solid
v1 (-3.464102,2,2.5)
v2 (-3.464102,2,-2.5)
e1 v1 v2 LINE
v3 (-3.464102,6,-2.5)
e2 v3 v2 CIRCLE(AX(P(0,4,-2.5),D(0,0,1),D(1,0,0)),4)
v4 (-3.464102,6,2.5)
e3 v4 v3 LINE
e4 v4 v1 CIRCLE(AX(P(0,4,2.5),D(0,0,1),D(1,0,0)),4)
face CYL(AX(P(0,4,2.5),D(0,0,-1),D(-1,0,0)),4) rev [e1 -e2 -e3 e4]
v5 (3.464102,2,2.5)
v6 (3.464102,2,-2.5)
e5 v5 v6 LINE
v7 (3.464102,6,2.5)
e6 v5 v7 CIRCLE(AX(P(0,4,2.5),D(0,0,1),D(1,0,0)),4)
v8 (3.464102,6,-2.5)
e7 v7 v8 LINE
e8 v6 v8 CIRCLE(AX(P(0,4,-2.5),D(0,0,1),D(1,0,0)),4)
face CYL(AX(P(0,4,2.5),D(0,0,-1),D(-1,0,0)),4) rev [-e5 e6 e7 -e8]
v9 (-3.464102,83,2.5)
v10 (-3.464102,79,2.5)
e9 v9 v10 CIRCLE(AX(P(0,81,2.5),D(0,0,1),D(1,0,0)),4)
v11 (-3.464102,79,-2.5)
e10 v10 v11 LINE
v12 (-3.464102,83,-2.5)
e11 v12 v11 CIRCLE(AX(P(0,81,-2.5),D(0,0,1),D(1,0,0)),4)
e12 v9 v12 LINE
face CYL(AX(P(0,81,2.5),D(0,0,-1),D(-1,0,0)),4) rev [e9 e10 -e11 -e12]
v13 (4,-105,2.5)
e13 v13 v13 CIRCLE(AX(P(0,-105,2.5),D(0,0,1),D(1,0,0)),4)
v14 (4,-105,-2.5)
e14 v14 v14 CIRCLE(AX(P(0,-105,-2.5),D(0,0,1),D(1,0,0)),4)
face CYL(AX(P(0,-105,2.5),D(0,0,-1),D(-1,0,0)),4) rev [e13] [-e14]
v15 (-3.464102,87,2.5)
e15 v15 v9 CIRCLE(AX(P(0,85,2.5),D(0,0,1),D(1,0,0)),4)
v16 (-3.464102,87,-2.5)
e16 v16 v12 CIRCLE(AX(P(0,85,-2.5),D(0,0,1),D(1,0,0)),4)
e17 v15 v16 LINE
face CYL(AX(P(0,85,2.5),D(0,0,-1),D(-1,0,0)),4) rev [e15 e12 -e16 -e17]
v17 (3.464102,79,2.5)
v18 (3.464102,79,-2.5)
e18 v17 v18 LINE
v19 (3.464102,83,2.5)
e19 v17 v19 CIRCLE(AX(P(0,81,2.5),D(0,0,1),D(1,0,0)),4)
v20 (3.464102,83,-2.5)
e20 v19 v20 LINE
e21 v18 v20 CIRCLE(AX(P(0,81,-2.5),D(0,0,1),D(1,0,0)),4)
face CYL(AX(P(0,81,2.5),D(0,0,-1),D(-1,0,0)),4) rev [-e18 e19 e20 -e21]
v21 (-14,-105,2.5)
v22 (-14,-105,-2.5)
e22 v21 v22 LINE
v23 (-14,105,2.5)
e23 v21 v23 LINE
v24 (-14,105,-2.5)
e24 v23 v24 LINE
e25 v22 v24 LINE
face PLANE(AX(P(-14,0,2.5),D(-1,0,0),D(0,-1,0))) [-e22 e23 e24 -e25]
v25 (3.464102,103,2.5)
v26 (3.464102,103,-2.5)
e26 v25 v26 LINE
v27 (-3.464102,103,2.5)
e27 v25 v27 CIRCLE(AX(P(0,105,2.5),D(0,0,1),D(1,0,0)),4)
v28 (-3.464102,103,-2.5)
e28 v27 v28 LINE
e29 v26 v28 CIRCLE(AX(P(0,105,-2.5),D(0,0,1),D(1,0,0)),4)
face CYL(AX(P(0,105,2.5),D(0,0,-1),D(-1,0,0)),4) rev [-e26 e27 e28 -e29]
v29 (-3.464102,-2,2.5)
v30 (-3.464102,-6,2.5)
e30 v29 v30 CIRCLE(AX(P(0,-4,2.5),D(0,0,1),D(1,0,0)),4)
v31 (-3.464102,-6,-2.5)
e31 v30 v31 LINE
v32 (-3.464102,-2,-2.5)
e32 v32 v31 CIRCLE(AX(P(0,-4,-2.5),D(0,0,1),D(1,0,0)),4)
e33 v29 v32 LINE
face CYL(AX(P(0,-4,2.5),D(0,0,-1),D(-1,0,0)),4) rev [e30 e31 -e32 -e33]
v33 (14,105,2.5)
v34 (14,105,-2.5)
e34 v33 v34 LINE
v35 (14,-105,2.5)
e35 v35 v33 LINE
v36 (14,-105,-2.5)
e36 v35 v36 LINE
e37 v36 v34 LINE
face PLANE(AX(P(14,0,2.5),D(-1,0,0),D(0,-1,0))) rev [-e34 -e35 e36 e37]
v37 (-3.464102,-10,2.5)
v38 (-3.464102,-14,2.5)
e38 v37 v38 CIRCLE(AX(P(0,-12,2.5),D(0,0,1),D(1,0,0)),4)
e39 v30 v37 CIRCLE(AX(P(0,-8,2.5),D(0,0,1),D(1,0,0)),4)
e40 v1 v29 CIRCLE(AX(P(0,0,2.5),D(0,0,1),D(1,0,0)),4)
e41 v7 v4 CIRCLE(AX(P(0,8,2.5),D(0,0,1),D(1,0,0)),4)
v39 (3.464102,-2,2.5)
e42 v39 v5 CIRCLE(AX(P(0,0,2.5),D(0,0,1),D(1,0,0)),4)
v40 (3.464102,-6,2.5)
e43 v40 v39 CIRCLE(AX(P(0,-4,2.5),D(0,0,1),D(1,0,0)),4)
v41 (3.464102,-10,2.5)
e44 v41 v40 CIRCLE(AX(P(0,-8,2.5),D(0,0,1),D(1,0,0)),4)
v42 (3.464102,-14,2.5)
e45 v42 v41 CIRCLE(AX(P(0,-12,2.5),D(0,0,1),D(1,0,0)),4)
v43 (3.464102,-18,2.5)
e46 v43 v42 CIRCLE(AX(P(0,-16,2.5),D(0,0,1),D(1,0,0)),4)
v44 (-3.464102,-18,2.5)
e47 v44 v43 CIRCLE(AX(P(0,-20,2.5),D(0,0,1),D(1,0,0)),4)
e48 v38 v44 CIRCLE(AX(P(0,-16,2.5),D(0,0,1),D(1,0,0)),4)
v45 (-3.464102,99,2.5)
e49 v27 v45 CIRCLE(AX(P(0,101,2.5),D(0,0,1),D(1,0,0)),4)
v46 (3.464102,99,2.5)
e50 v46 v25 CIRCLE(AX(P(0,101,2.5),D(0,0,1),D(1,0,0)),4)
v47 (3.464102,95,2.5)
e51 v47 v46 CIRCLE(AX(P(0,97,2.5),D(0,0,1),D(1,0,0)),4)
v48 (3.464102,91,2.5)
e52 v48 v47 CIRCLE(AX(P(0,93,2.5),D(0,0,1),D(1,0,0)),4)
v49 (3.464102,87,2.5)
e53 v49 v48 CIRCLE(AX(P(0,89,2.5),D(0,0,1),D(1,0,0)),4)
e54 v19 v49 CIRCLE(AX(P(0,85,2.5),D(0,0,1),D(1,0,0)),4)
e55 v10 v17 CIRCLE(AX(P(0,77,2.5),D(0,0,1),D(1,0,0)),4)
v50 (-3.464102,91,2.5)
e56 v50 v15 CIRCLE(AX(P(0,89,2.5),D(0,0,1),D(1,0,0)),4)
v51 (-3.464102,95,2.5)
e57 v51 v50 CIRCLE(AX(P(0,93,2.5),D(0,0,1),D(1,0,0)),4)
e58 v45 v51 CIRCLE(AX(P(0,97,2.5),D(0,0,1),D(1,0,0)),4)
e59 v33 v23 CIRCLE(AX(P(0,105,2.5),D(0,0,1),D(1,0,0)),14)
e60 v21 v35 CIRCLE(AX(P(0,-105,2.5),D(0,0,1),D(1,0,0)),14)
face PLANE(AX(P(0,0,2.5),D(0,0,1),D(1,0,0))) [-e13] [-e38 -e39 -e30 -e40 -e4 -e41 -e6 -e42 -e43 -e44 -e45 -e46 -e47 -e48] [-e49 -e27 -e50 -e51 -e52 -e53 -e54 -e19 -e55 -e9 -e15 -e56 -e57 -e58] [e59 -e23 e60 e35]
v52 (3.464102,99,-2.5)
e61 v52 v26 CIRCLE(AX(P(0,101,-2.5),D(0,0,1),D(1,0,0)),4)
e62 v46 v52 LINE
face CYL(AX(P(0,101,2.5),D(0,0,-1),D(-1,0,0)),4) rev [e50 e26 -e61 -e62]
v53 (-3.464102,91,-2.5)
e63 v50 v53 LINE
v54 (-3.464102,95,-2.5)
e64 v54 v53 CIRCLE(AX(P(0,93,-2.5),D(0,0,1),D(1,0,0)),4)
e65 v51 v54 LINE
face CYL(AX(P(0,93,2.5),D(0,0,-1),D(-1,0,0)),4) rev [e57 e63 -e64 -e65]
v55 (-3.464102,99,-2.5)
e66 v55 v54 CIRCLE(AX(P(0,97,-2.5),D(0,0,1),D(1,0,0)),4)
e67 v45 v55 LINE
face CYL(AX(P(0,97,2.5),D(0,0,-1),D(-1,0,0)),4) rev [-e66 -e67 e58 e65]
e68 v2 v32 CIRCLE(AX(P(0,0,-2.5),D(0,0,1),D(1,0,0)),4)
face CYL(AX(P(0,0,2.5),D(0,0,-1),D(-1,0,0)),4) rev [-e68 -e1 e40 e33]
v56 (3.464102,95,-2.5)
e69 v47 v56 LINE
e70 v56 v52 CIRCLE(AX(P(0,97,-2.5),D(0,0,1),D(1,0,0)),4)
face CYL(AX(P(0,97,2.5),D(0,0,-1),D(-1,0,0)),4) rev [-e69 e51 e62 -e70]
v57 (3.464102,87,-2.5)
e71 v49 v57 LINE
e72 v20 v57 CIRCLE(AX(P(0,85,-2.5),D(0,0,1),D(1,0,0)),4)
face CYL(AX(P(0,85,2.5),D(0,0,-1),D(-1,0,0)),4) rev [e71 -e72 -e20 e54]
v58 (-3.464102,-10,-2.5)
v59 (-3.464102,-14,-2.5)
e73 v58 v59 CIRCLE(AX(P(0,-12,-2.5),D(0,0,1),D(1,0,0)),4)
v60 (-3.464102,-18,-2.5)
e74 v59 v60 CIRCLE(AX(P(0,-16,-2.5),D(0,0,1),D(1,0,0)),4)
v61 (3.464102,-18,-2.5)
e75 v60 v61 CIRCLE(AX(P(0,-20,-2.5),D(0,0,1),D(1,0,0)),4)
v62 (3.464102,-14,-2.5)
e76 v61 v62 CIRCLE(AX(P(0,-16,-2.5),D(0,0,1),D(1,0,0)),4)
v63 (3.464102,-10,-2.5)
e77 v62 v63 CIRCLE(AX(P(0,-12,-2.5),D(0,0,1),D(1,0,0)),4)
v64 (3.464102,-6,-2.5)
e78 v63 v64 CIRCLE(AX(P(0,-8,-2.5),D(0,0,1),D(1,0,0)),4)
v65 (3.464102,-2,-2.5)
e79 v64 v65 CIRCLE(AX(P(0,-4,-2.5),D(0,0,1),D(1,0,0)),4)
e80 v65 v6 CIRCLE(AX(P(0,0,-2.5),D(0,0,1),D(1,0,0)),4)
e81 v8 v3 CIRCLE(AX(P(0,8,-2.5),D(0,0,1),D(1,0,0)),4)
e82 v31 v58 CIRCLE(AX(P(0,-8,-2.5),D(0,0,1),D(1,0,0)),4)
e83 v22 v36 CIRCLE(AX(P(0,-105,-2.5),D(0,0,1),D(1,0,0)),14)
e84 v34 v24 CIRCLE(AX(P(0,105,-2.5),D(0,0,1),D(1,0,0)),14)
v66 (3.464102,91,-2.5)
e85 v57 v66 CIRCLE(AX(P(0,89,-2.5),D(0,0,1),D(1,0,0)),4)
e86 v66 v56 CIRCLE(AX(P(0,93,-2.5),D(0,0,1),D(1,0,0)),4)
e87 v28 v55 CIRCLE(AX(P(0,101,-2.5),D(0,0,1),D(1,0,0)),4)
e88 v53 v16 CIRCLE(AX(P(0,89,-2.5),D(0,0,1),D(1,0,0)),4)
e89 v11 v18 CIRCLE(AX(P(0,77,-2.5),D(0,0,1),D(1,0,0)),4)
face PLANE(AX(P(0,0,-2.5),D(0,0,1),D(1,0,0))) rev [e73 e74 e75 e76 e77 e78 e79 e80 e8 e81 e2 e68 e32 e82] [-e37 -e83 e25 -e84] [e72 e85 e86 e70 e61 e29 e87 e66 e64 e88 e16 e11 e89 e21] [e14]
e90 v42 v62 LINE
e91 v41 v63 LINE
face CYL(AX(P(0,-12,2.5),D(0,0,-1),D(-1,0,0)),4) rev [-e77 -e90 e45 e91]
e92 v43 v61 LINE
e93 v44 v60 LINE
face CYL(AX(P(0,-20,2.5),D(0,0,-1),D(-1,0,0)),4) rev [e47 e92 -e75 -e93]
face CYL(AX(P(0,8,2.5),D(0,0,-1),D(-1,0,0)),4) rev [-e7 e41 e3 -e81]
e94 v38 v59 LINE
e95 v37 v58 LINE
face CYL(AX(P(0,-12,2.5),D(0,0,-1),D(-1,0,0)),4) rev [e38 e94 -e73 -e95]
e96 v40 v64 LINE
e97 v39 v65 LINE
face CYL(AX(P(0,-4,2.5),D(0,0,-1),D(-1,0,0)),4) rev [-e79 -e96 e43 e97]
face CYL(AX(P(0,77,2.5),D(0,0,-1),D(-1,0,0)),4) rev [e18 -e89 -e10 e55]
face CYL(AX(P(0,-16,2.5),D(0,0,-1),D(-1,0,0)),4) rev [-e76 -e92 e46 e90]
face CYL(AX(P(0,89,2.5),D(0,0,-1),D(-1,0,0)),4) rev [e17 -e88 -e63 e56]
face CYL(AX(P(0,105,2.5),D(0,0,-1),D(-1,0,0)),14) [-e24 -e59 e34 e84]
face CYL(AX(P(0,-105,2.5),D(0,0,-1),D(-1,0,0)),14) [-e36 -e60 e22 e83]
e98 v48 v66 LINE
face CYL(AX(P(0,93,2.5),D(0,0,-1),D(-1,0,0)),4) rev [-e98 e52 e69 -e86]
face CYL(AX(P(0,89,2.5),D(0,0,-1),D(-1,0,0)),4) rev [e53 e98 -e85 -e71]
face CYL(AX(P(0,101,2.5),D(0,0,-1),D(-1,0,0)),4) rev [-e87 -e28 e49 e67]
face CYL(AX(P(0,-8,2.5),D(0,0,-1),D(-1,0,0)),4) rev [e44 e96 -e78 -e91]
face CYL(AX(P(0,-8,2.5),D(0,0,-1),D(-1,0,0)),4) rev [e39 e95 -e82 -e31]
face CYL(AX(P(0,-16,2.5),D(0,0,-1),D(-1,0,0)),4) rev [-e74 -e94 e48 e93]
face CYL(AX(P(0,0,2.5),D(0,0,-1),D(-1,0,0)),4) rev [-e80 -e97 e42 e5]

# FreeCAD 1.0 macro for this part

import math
import FreeCAD as App
import Part
import Sketcher

V = App.Vector
Q = App.Units.Quantity

doc = App.newDocument("Part")
params = doc.addObject("Spreadsheet::Sheet", "Params")
for row, (alias, value) in enumerate([
    ("sketch1_diameter", "8 mm"),
    ("sketch1_radius", "14 mm"),
    ("sketch1_height", "210 mm"),
    ("pad1_length", "5 mm"),
], start=1):
    params.set(f"A{row}", alias)
    params.set(f"B{row}", "=" + value)
    params.setAlias(f"B{row}", alias)

body = doc.addObject("PartDesign::Body", "Body")

# Sketch on XY plane
sketch1 = body.newObject("Sketcher::SketchObject", "Sketch")
sketch1.AttachmentSupport = (doc.getObject("XY_Plane"), [""])
sketch1.MapMode = "FlatFace"
sketch1.addGeometry([
    Part.LineSegment(V(-14, 105, 0), V(-14, -105, 0)),  # 0
    Part.ArcOfCircle(Part.Circle(V(0, -105, 0), V(0, 0, 1), 14), math.radians(180), math.radians(360)),  # 1
    Part.LineSegment(V(14, -105, 0), V(14, 105, 0)),  # 2
    Part.ArcOfCircle(Part.Circle(V(0, 105, 0), V(0, 0, 1), 14), math.radians(0), math.radians(180)),  # 3
    Part.Circle(V(0, -105, 0), V(0, 0, 1), 4),  # 4
    Part.ArcOfCircle(Part.Circle(V(0, -4, 0), V(0, 0, 1), 4), math.radians(150), math.radians(210)),  # 5
    Part.ArcOfCircle(Part.Circle(V(0, 0, 0), V(0, 0, 1), 4), math.radians(150), math.radians(210)),  # 6
    Part.ArcOfCircle(Part.Circle(V(0, 4, 0), V(0, 0, 1), 4), math.radians(150), math.radians(210)),  # 7
    Part.ArcOfCircle(Part.Circle(V(0, 8, 0), V(0, 0, 1), 4), math.radians(90), math.radians(210)),  # 8
    Part.ArcOfCircle(Part.Circle(V(0, 8, 0), V(0, 0, 1), 4), math.radians(-30), math.radians(90)),  # 9
    Part.ArcOfCircle(Part.Circle(V(0, 4, 0), V(0, 0, 1), 4), math.radians(-30), math.radians(30)),  # 10
    Part.ArcOfCircle(Part.Circle(V(0, 0, 0), V(0, 0, 1), 4), math.radians(-30), math.radians(30)),  # 11
    Part.ArcOfCircle(Part.Circle(V(0, -4, 0), V(0, 0, 1), 4), math.radians(-30), math.radians(30)),  # 12
    Part.ArcOfCircle(Part.Circle(V(0, -8, 0), V(0, 0, 1), 4), math.radians(-30), math.radians(30)),  # 13
    Part.ArcOfCircle(Part.Circle(V(0, -12, 0), V(0, 0, 1), 4), math.radians(-30), math.radians(30)),  # 14
    Part.ArcOfCircle(Part.Circle(V(0, -16, 0), V(0, 0, 1), 4), math.radians(-30), math.radians(30)),  # 15
    Part.ArcOfCircle(Part.Circle(V(0, -20, 0), V(0, 0, 1), 4), math.radians(150), math.radians(390)),  # 16
    Part.ArcOfCircle(Part.Circle(V(0, -16, 0), V(0, 0, 1), 4), math.radians(150), math.radians(210)),  # 17
    Part.ArcOfCircle(Part.Circle(V(0, -12, 0), V(0, 0, 1), 4), math.radians(150), math.radians(210)),  # 18
    Part.ArcOfCircle(Part.Circle(V(0, -8, 0), V(0, 0, 1), 4), math.radians(150), math.radians(210)),  # 19
    Part.ArcOfCircle(Part.Circle(V(0, 101, 0), V(0, 0, 1), 4), math.radians(150), math.radians(210)),  # 20
    Part.ArcOfCircle(Part.Circle(V(0, 105, 0), V(0, 0, 1), 4), math.radians(-30), math.radians(210)),  # 21
    Part.ArcOfCircle(Part.Circle(V(0, 101, 0), V(0, 0, 1), 4), math.radians(-30), math.radians(30)),  # 22
    Part.ArcOfCircle(Part.Circle(V(0, 97, 0), V(0, 0, 1), 4), math.radians(-30), math.radians(30)),  # 23
    Part.ArcOfCircle(Part.Circle(V(0, 93, 0), V(0, 0, 1), 4), math.radians(-30), math.radians(30)),  # 24
    Part.ArcOfCircle(Part.Circle(V(0, 89, 0), V(0, 0, 1), 4), math.radians(-30), math.radians(30)),  # 25
    Part.ArcOfCircle(Part.Circle(V(0, 85, 0), V(0, 0, 1), 4), math.radians(-30), math.radians(30)),  # 26
    Part.ArcOfCircle(Part.Circle(V(0, 81, 0), V(0, 0, 1), 4), math.radians(-30), math.radians(30)),  # 27
    Part.ArcOfCircle(Part.Circle(V(0, 77, 0), V(0, 0, 1), 4), math.radians(150), math.radians(390)),  # 28
    Part.ArcOfCircle(Part.Circle(V(0, 81, 0), V(0, 0, 1), 4), math.radians(150), math.radians(210)),  # 29
    Part.ArcOfCircle(Part.Circle(V(0, 85, 0), V(0, 0, 1), 4), math.radians(150), math.radians(210)),  # 30
    Part.ArcOfCircle(Part.Circle(V(0, 89, 0), V(0, 0, 1), 4), math.radians(150), math.radians(210)),  # 31
    Part.ArcOfCircle(Part.Circle(V(0, 93, 0), V(0, 0, 1), 4), math.radians(150), math.radians(210)),  # 32
    Part.ArcOfCircle(Part.Circle(V(0, 97, 0), V(0, 0, 1), 4), math.radians(150), math.radians(210)),  # 33
], False)
sketch1.addConstraint([
    Sketcher.Constraint("Tangent", 0, 2, 1, 1),
    Sketcher.Constraint("Tangent", 1, 2, 2, 1),
    Sketcher.Constraint("Tangent", 2, 2, 3, 1),
    Sketcher.Constraint("Tangent", 3, 2, 0, 1),
    Sketcher.Constraint("Coincident", 5, 1, 6, 2),
    Sketcher.Constraint("Coincident", 6, 1, 7, 2),
    Sketcher.Constraint("Coincident", 7, 1, 8, 2),
    Sketcher.Constraint("Tangent", 8, 1, 9, 2),
    Sketcher.Constraint("Coincident", 9, 1, 10, 2),
    Sketcher.Constraint("Coincident", 10, 1, 11, 2),
    Sketcher.Constraint("Coincident", 11, 1, 12, 2),
    Sketcher.Constraint("Coincident", 12, 1, 13, 2),
    Sketcher.Constraint("Coincident", 13, 1, 14, 2),
    Sketcher.Constraint("Coincident", 14, 1, 15, 2),
    Sketcher.Constraint("Coincident", 15, 1, 16, 2),
    Sketcher.Constraint("Coincident", 16, 1, 17, 2),
    Sketcher.Constraint("Coincident", 17, 1, 18, 2),
    Sketcher.Constraint("Coincident", 18, 1, 19, 2),
    Sketcher.Constraint("Coincident", 19, 1, 5, 2),
    Sketcher.Constraint("Coincident", 20, 1, 21, 2),
    Sketcher.Constraint("Coincident", 21, 1, 22, 2),
    Sketcher.Constraint("Coincident", 22, 1, 23, 2),
    Sketcher.Constraint("Coincident", 23, 1, 24, 2),
    Sketcher.Constraint("Coincident", 24, 1, 25, 2),
    Sketcher.Constraint("Coincident", 25, 1, 26, 2),
    Sketcher.Constraint("Coincident", 26, 1, 27, 2),
    Sketcher.Constraint("Coincident", 27, 1, 28, 2),
    Sketcher.Constraint("Coincident", 28, 1, 29, 2),
    Sketcher.Constraint("Coincident", 29, 1, 30, 2),
    Sketcher.Constraint("Coincident", 30, 1, 31, 2),
    Sketcher.Constraint("Coincident", 31, 1, 32, 2),
    Sketcher.Constraint("Coincident", 32, 1, 33, 2),
    Sketcher.Constraint("Coincident", 33, 1, 20, 2),
    Sketcher.Constraint("Vertical", 0),
    Sketcher.Constraint("Vertical", 2),
    Sketcher.Constraint("Coincident", 6, 3, -1, 1),
    Sketcher.Constraint("Coincident", 11, 3, -1, 1),
    Sketcher.Constraint("Coincident", 4, 3, 1, 3),
    Sketcher.Constraint("Coincident", 10, 3, 7, 3),
    Sketcher.Constraint("Coincident", 12, 3, 5, 3),
    Sketcher.Constraint("Coincident", 17, 3, 15, 3),
    Sketcher.Constraint("Coincident", 18, 3, 14, 3),
    Sketcher.Constraint("Coincident", 19, 3, 13, 3),
    Sketcher.Constraint("Coincident", 21, 3, 3, 3),
    Sketcher.Constraint("Coincident", 22, 3, 20, 3),
    Sketcher.Constraint("Coincident", 29, 3, 27, 3),
    Sketcher.Constraint("Coincident", 30, 3, 26, 3),
    Sketcher.Constraint("Coincident", 31, 3, 25, 3),
    Sketcher.Constraint("Coincident", 32, 3, 24, 3),
    Sketcher.Constraint("Coincident", 33, 3, 23, 3),
    Sketcher.Constraint("Equal", 4, 5),
    Sketcher.Constraint("Equal", 5, 6),
    Sketcher.Constraint("Equal", 6, 7),
    Sketcher.Constraint("Equal", 7, 8),
    Sketcher.Constraint("Equal", 8, 9),
    Sketcher.Constraint("Equal", 9, 10),
    Sketcher.Constraint("Equal", 10, 11),
    Sketcher.Constraint("Equal", 11, 12),
    Sketcher.Constraint("Equal", 12, 13),
    Sketcher.Constraint("Equal", 13, 14),
    Sketcher.Constraint("Equal", 14, 15),
    Sketcher.Constraint("Equal", 15, 16),
    Sketcher.Constraint("Equal", 16, 17),
    Sketcher.Constraint("Equal", 17, 18),
    Sketcher.Constraint("Equal", 18, 19),
    Sketcher.Constraint("Equal", 19, 20),
    Sketcher.Constraint("Equal", 20, 21),
    Sketcher.Constraint("Equal", 21, 22),
    Sketcher.Constraint("Equal", 22, 23),
    Sketcher.Constraint("Equal", 23, 24),
    Sketcher.Constraint("Equal", 24, 25),
    Sketcher.Constraint("Equal", 25, 26),
    Sketcher.Constraint("Equal", 26, 27),
    Sketcher.Constraint("Equal", 27, 28),
    Sketcher.Constraint("Equal", 28, 29),
    Sketcher.Constraint("Equal", 29, 30),
    Sketcher.Constraint("Equal", 30, 31),
    Sketcher.Constraint("Equal", 31, 32),
    Sketcher.Constraint("Equal", 32, 33),
    Sketcher.Constraint("Symmetric", 1, 3, 3, 3, -1, 1),
    Sketcher.Constraint("Symmetric", 5, 3, 7, 3, -1, 1),
    Sketcher.Constraint("Symmetric", 8, 3, 13, 3, -1, 1),
    Sketcher.Constraint("Symmetric", 7, 1, 9, 1, -2),
    Sketcher.Constraint("Symmetric", 15, 1, 16, 1, -2),
    Sketcher.Constraint("Symmetric", 27, 1, 28, 1, -2),
    Sketcher.Constraint("Symmetric", 25, 1, 30, 1, -2),
    Sketcher.Constraint("Symmetric", 23, 1, 32, 1, -2),
    Sketcher.Constraint("PointOnObject", 14, 3, -2),
    Sketcher.Constraint("PointOnObject", 20, 3, -2),
    Sketcher.Constraint("PointOnObject", 8, 1, -2),
    Sketcher.Constraint("Vertical", 6, 1, 7, 1),
    Sketcher.Constraint("Vertical", 12, 1, 13, 1),
    Sketcher.Constraint("Vertical", 13, 1, 14, 1),
    Sketcher.Constraint("Vertical", 14, 1, 15, 1),
    Sketcher.Constraint("Vertical", 19, 1, 20, 1),
    Sketcher.Constraint("Vertical", 21, 1, 22, 1),
    Sketcher.Constraint("Vertical", 22, 1, 23, 1),
    Sketcher.Constraint("Vertical", 23, 1, 24, 1),
    Sketcher.Constraint("Vertical", 24, 1, 25, 1),
    Sketcher.Constraint("Vertical", 25, 1, 26, 1),
    Sketcher.Constraint("Vertical", 26, 1, 27, 1),
    Sketcher.Constraint("Diameter", 4, Q("8 mm")),
    Sketcher.Constraint("Radius", 1, Q("14 mm")),
    Sketcher.Constraint("DistanceY", 0, 2, 0, 1, Q("210 mm")),
    Sketcher.Constraint("DistanceY", 5, 3, -1, 1, Q("4 mm")),
])
sketch1.setExpression("Constraints[101]", "Params.sketch1_diameter")
sketch1.setExpression("Constraints[102]", "Params.sketch1_radius")
sketch1.setExpression("Constraints[103]", "Params.sketch1_height")
pad1 = body.newObject("PartDesign::Pad", "Pad")
pad1.Profile = sketch1
pad1.setExpression("Length", "Params.pad1_length")
pad1.Midplane = True

doc.recompute()
